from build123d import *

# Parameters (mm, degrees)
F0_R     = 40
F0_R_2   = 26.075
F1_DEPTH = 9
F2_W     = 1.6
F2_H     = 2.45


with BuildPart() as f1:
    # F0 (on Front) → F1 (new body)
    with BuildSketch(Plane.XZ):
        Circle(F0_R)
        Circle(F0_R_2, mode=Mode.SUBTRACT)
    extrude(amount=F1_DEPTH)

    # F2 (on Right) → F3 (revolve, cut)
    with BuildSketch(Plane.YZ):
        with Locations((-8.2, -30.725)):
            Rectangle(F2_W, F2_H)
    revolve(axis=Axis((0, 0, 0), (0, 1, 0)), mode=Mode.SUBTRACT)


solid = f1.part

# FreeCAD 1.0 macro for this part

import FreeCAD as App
import Part
import Sketcher


def add_polygon(sketch, points):
    """Adds a closed chain of lines whose ends are joined by coincident constraints."""
    first, n = sketch.GeometryCount, len(points)
    for a, b in zip(points, points[1:] + points[:1]):
        sketch.addGeometry(Part.LineSegment(App.Vector(*a, 0), App.Vector(*b, 0)), False)
    for i in range(n):
        sketch.addConstraint(Sketcher.Constraint("Coincident", first + i, 2, first + (i + 1) % n, 1))

doc = App.newDocument("Part")
body = doc.addObject("PartDesign::Body", "Body")

sketch1 = body.newObject("Sketcher::SketchObject", "Sketch")
sketch1.AttachmentSupport = (doc.getObject("XZ_Plane"), [""])
sketch1.MapMode = "FlatFace"
sketch1.addGeometry([
    Part.Circle(App.Vector(0, 0, 0), App.Vector(0, 0, 1), 40),
    Part.Circle(App.Vector(0, 0, 0), App.Vector(0, 0, 1), 26.075),
], False)
sketch1.addConstraint([
    Sketcher.Constraint("Coincident", 0, 3, -1, 1),
    Sketcher.Constraint("Coincident", 1, 3, -1, 1),
    Sketcher.Constraint("Diameter", 0, 80.0),
    Sketcher.Constraint("Diameter", 1, 52.15),
])
pad1 = body.newObject("PartDesign::Pad", "Pad")
pad1.Profile = sketch1
pad1.Length = 9

sketch2 = body.newObject("Sketcher::SketchObject", "Sketch001")
sketch2.AttachmentSupport = (doc.getObject("YZ_Plane"), [""])
sketch2.MapMode = "FlatFace"
add_polygon(sketch2, [(-9, -29.5), (-9, -31.95), (-7.4, -31.95), (-7.4, -29.5)])
sketch2.addConstraint([
    Sketcher.Constraint("Vertical", 0),
    Sketcher.Constraint("Horizontal", 1),
    Sketcher.Constraint("Vertical", 2),
    Sketcher.Constraint("Horizontal", 3),
    Sketcher.Constraint("DistanceX", 1, 1, 1, 2, 1.6),
    Sketcher.Constraint("DistanceX", 0, 2, -1, 1, 9.0),
    Sketcher.Constraint("DistanceY", 0, 2, 0, 1, 2.45),
    Sketcher.Constraint("DistanceY", 2, 2, -1, 1, 29.5),
])
groove = body.newObject("PartDesign::Groove", "Groove")
groove.Profile = sketch2
groove.ReferenceAxis = (sketch2, ["H_Axis"])
groove.Angle = 360

doc.recompute()
